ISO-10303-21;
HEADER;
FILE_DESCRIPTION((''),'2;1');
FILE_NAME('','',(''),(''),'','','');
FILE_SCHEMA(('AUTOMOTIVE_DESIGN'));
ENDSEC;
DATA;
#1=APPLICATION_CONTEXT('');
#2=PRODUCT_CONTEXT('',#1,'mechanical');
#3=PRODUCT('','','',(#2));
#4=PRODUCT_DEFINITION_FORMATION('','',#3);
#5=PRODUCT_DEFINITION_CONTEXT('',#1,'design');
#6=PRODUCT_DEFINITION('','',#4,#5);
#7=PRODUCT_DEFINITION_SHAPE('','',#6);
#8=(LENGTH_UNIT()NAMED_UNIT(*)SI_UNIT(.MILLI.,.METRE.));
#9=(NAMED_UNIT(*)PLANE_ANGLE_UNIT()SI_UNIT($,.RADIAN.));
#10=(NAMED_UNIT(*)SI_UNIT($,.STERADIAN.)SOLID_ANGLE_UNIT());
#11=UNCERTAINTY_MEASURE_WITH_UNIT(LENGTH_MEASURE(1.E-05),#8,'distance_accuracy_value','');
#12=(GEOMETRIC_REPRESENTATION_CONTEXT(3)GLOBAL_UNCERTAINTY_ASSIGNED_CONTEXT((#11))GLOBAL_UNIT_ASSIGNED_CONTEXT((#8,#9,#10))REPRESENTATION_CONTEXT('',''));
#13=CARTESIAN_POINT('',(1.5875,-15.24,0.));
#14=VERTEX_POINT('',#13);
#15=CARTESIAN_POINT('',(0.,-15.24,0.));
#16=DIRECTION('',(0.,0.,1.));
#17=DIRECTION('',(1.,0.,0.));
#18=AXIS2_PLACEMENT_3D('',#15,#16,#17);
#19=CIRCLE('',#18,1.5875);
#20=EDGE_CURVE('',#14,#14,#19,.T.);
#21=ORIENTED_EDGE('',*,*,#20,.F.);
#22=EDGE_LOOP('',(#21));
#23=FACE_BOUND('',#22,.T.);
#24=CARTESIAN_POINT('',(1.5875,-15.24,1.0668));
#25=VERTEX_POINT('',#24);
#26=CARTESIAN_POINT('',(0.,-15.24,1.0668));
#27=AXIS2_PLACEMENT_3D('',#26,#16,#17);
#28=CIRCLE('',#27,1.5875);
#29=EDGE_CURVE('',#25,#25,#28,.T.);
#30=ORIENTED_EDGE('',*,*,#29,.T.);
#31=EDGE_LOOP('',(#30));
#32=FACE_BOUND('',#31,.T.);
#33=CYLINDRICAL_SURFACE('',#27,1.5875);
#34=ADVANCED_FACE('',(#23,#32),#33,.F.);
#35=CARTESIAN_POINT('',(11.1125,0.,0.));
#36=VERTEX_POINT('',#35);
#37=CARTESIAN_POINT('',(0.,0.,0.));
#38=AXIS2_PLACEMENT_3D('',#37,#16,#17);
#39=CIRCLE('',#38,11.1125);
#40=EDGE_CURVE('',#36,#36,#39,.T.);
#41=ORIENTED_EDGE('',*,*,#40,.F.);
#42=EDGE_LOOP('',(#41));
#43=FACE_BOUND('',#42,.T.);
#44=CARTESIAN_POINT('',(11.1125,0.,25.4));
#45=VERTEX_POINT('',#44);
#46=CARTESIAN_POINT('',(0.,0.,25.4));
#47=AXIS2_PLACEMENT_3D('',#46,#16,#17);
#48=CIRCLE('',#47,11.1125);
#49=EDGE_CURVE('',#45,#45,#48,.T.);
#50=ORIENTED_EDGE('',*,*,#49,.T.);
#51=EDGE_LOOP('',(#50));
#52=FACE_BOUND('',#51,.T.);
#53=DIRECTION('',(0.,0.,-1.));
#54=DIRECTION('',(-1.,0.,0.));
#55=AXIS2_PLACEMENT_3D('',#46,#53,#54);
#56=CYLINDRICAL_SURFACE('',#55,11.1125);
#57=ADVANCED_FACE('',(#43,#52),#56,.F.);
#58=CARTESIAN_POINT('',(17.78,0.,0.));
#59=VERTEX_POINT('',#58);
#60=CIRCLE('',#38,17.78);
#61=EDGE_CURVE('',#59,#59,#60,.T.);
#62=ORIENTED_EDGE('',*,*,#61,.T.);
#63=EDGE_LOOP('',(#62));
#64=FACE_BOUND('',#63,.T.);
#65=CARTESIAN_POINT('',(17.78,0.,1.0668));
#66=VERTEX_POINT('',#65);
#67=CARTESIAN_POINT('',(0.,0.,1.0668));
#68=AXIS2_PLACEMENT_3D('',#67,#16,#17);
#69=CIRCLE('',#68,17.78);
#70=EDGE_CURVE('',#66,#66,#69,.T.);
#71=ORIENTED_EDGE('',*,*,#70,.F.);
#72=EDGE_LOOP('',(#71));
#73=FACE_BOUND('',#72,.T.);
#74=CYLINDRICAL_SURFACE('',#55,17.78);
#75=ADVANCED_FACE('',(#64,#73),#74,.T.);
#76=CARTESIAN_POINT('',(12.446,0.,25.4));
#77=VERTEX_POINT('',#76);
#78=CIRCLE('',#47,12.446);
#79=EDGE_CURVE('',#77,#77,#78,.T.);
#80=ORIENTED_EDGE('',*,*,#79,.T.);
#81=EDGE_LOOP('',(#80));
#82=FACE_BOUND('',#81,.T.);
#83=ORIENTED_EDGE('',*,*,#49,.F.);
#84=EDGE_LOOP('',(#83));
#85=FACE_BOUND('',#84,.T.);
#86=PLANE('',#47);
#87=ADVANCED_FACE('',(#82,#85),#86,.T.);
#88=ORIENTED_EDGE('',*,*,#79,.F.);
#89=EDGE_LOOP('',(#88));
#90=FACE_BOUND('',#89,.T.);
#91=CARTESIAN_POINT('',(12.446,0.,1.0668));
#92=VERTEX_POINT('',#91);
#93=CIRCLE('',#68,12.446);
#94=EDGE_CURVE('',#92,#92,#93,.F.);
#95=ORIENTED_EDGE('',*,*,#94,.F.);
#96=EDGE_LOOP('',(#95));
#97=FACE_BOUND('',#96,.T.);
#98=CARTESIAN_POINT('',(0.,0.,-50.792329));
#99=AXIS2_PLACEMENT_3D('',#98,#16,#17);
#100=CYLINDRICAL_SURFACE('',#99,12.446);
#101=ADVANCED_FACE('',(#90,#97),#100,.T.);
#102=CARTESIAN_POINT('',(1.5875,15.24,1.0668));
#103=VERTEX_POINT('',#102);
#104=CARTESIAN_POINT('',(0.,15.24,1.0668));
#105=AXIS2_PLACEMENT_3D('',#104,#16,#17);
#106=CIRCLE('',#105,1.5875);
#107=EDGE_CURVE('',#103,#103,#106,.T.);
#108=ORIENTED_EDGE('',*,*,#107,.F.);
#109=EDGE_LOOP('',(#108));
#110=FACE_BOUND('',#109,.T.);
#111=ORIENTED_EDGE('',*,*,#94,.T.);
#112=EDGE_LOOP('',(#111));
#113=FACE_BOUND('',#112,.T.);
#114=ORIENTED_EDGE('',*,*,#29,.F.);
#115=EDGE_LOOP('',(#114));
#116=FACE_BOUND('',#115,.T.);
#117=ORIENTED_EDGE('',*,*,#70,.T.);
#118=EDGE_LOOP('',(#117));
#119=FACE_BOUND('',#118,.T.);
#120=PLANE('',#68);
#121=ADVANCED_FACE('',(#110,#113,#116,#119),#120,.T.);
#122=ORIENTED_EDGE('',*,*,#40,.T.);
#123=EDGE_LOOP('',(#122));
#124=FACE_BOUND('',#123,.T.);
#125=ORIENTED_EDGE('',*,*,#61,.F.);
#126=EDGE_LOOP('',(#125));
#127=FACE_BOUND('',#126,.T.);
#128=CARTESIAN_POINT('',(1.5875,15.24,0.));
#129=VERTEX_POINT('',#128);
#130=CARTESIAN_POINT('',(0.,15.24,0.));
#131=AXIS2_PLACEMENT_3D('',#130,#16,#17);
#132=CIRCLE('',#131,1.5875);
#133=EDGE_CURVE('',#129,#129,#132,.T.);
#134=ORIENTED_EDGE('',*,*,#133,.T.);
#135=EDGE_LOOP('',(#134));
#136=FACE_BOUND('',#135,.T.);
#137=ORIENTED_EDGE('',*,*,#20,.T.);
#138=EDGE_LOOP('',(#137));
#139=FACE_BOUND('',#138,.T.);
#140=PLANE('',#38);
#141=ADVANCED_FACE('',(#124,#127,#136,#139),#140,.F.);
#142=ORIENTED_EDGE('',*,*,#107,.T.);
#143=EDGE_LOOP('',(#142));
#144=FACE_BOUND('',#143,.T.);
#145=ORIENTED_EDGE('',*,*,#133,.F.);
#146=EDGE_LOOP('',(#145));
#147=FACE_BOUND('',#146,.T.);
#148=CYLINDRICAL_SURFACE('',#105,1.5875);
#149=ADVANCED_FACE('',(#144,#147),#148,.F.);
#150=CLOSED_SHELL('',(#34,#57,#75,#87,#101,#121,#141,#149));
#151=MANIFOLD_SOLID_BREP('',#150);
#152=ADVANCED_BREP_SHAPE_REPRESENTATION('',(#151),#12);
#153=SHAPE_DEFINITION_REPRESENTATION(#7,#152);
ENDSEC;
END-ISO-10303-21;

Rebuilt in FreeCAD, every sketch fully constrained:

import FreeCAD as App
import Part
import Sketcher
from FreeCAD import Vector
Q = App.Units.Quantity


def add_polygon(sketch, points):
    """Adds a closed chain of lines whose ends are joined by coincident constraints."""
    first, n = sketch.GeometryCount, len(points)
    for a, b in zip(points, points[1:] + points[:1]):
        sketch.addGeometry(Part.LineSegment(App.Vector(*a, 0), App.Vector(*b, 0)), False)
    for i in range(n):
        sketch.addConstraint(Sketcher.Constraint("Coincident", first + i, 2, first + (i + 1) % n, 1))

doc = App.newDocument("Part")
params = doc.addObject("Spreadsheet::Sheet", "Params")
for row, (alias, value) in enumerate([
    ("sketch1_diameter", "1.4 in"),
    ("sketch1_diameter2", "0.875 in"),
    ("pad1_length", "1 in"),
    ("sketch2_diameter", "0.98 in"),
    ("pocket1_length", "0.958 in"),
    ("sketch3_diameter", "0.125 in"),
    ("hole_diameter", "0.125 in"),
], start=1):
    params.set(f"A{row}", alias)
    params.set(f"B{row}", "=" + value)
    params.setAlias(f"B{row}", alias)

body = doc.addObject("PartDesign::Body", "Body")

# Sketch on XY plane
sketch1 = body.newObject("Sketcher::SketchObject", "Sketch")
sketch1.AttachmentSupport = (doc.getObject("XY_Plane"), [""])
sketch1.MapMode = "FlatFace"
sketch1.addGeometry([
    Part.Circle(Vector(0, 0, 0), Vector(0, 0, 1), 18),
    Part.Circle(Vector(0, 0, 0), Vector(0, 0, 1), 11),
], False)
sketch1.addConstraint([
    Sketcher.Constraint("Coincident", 0, 3, -1, 1),
    Sketcher.Constraint("Coincident", 1, 3, -1, 1),
    Sketcher.Constraint("Diameter", 0, Q("1.4 in")),
    Sketcher.Constraint("Diameter", 1, Q("0.875 in")),
])
sketch1.setExpression("Constraints[2]", "Params.sketch1_diameter")
sketch1.setExpression("Constraints[3]", "Params.sketch1_diameter2")
pad1 = body.newObject("PartDesign::Pad", "Pad")
pad1.Profile = sketch1
pad1.setExpression("Length", "Params.pad1_length")

# Sketch on XY plane
sketch2 = body.newObject("Sketcher::SketchObject", "Sketch001")
sketch2.AttachmentSupport = (doc.getObject("XY_Plane"), [""])
sketch2.MapMode = "FlatFace"
sketch2.AttachmentOffset = App.Placement(Vector(0, 0, 0.042 * 25.4), App.Rotation())
add_polygon(sketch2, [(-24, 24), (-24, -24), (24, -24), (24, 24)])  # lines 0-3
sketch2.addGeometry(Part.Circle(Vector(0, 0, 0), Vector(0, 0, 1), 12), False)  # 4
sketch2.addConstraint([
    Sketcher.Constraint("Vertical", 0),
    Sketcher.Constraint("Horizontal", 1),
    Sketcher.Constraint("Vertical", 2),
    Sketcher.Constraint("Horizontal", 3),
    Sketcher.Constraint("Coincident", 4, 3, -1, 1),
    Sketcher.Constraint("Symmetric", 0, 2, 2, 2, -1, 1),
    Sketcher.Constraint("Equal", 3, 0),
    Sketcher.Constraint("Diameter", 4, Q("0.98 in")),
    Sketcher.Constraint("DistanceX", 1, 1, 1, 2, 48.828),
])
sketch2.setExpression("Constraints[11]", "Params.sketch2_diameter")
pocket1 = body.newObject("PartDesign::Pocket", "Pocket")
pocket1.Profile = sketch2
pocket1.setExpression("Length", "Params.pocket1_length")
pocket1.Reversed = True

# Sketch on XY plane
sketch3 = body.newObject("Sketcher::SketchObject", "Sketch002")
sketch3.AttachmentSupport = (doc.getObject("XY_Plane"), [""])
sketch3.MapMode = "FlatFace"
sketch3.AttachmentOffset = App.Placement(Vector(0, 0, 0.042 * 25.4), App.Rotation())
sketch3.addGeometry(Part.Circle(Vector(0, 15.2, 0), Vector(0, 0, 1), 1.6), False)
sketch3.addConstraint([
    Sketcher.Constraint("PointOnObject", 0, 3, -2),
    Sketcher.Constraint("Diameter", 0, Q("0.125 in")),
    Sketcher.Constraint("DistanceY", -1, 1, 0, 3, Q("0.6 in")),
])
sketch3.setExpression("Constraints[1]", "Params.sketch3_diameter")
doc.recompute()
hole = body.newObject("PartDesign::Hole", "Hole")
hole.Profile = sketch3
hole.ThreadType = "None"
hole.setExpression("Diameter", "Params.hole_diameter")
hole.DepthType = "ThroughAll"
doc.recompute()

mirrored = body.newObject("PartDesign::Mirrored", "Mirrored")
mirrored.Originals = [hole]
mirrored.MirrorPlane = (doc.getObject("XZ_Plane"), [""])
body.Tip = mirrored

doc.recompute()
